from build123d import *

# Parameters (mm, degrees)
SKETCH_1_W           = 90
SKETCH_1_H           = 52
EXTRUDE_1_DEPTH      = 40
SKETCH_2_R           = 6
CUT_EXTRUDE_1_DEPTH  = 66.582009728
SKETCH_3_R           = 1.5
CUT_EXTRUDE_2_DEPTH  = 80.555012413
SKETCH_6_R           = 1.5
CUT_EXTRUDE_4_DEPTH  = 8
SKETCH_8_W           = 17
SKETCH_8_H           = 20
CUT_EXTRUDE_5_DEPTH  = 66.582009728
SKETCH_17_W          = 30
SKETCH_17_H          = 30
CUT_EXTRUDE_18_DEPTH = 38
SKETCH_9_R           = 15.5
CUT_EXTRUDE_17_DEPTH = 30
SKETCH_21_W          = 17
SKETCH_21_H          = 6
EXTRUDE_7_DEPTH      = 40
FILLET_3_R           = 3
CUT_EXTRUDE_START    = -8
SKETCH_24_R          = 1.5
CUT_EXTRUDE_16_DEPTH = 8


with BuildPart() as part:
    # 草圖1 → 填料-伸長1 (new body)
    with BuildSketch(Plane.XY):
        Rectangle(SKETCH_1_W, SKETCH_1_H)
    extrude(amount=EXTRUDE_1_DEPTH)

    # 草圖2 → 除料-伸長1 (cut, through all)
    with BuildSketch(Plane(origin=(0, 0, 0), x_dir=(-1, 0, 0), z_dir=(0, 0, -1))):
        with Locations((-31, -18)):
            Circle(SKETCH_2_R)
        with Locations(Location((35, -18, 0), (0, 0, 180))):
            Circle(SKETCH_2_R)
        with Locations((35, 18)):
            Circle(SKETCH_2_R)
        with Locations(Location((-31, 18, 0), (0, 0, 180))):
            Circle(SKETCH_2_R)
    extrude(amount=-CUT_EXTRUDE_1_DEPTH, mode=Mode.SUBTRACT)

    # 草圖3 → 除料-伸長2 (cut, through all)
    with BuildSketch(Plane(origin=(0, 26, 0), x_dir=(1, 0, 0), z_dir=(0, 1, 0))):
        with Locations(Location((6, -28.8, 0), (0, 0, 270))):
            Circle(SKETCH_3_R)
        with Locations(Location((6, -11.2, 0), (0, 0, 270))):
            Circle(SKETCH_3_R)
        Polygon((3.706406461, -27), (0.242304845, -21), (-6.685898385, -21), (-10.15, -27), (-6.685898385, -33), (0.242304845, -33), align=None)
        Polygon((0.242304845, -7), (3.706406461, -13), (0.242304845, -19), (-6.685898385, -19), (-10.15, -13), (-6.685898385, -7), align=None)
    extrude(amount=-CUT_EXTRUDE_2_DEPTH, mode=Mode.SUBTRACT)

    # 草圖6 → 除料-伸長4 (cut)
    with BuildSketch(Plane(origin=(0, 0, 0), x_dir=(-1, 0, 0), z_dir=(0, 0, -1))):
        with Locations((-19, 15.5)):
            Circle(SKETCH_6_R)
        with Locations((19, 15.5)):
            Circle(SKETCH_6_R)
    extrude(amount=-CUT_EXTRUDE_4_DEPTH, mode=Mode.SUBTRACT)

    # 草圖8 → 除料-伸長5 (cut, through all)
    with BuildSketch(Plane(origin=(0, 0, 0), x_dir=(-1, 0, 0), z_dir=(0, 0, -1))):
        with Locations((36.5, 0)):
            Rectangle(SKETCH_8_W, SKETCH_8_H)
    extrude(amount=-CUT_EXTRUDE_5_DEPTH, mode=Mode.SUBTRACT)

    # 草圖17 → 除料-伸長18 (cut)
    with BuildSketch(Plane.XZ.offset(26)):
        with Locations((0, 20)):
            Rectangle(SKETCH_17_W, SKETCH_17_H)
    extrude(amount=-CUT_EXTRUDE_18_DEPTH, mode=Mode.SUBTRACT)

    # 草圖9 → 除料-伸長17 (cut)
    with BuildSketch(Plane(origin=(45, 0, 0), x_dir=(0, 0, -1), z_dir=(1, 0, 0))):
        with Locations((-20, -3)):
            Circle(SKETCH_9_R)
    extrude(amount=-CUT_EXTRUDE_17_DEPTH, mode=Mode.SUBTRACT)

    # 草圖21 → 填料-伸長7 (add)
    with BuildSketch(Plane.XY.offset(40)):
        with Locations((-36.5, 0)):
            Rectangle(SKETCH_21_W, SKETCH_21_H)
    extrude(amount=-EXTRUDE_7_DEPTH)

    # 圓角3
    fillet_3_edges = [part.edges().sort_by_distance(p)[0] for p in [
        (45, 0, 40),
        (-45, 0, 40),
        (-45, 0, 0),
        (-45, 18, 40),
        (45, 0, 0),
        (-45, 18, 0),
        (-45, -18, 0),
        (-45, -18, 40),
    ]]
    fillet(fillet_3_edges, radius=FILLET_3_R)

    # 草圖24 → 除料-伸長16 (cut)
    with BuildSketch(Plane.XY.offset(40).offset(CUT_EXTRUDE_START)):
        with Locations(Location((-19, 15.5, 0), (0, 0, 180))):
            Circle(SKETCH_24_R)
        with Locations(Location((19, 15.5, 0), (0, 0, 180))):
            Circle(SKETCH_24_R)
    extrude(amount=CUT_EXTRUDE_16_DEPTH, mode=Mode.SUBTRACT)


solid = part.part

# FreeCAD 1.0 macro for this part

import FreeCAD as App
import Part
import Sketcher

V = App.Vector
Q = App.Units.Quantity


def edges_at(feature, points):
    """Names of the edges that pass closest to the given points."""
    edges = feature.Shape.Edges
    near = lambda p: min(range(len(edges)), key=lambda i: edges[i].distToShape(Part.Vertex(*p))[0])
    return sorted({f"Edge{near(p) + 1}" for p in points})

doc = App.newDocument("Part")
body = doc.addObject("PartDesign::Body", "Body")

# Sketch on XY plane
sketch1 = doc.addObject("Sketcher::SketchObject", "Sketch")
body.addObject(sketch1)
sketch1.AttachmentSupport = (doc.XY_Plane, [""])
sketch1.MapMode = "FlatFace"
sketch1.addGeometry([
    Part.LineSegment(V(-45, 26, 0), V(-45, -26, 0)),
    Part.LineSegment(V(-45, -26, 0), V(45, -26, 0)),
    Part.LineSegment(V(45, -26, 0), V(45, 26, 0)),
    Part.LineSegment(V(45, 26, 0), V(-45, 26, 0)),
], False)
sketch1.addConstraint([
    Sketcher.Constraint("Coincident", 0, 2, 1, 1),
    Sketcher.Constraint("Coincident", 1, 2, 2, 1),
    Sketcher.Constraint("Coincident", 2, 2, 3, 1),
    Sketcher.Constraint("Coincident", 3, 2, 0, 1),
    Sketcher.Constraint("Vertical", 0),
    Sketcher.Constraint("Horizontal", 1),
    Sketcher.Constraint("Vertical", 2),
    Sketcher.Constraint("Horizontal", 3),
    Sketcher.Constraint("Symmetric", 0, 2, 2, 2, -1, 1),
    Sketcher.Constraint("DistanceX", 1, 1, 1, 2, Q("90 mm")),
    Sketcher.Constraint("DistanceY", 0, 2, 0, 1, Q("52 mm")),
])
pad1 = doc.addObject("PartDesign::Pad", "Pad")
body.addObject(pad1)
pad1.Profile = sketch1
pad1.Length = 40

# Sketch on XY plane
sketch2 = doc.addObject("Sketcher::SketchObject", "Sketch001")
body.addObject(sketch2)
sketch2.AttachmentSupport = (doc.XY_Plane, [""])
sketch2.MapMode = "FlatFace"
sketch2.addGeometry([
    Part.Circle(V(31, -18, 0), V(0, 0, 1), 6),
    Part.Circle(V(-35, -18, 0), V(0, 0, 1), 6),
    Part.Circle(V(-35, 18, 0), V(0, 0, 1), 6),
    Part.Circle(V(31, 18, 0), V(0, 0, 1), 6),
], False)
sketch2.addConstraint([
    Sketcher.Constraint("Equal", 0, 1),
    Sketcher.Constraint("Equal", 1, 2),
    Sketcher.Constraint("Equal", 2, 3),
    Sketcher.Constraint("Symmetric", 1, 3, 2, 3, -1),
    Sketcher.Constraint("Symmetric", 0, 3, 3, 3, -1),
    Sketcher.Constraint("Horizontal", 0, 3, 1, 3),
    Sketcher.Constraint("Diameter", 0, Q("12 mm")),
    Sketcher.Constraint("DistanceX", -1, 1, 0, 3, Q("31 mm")),
    Sketcher.Constraint("DistanceY", 0, 3, -1, 1, Q("18 mm")),
    Sketcher.Constraint("DistanceX", 1, 3, -1, 1, Q("35 mm")),
])
pocket1 = doc.addObject("PartDesign::Pocket", "Pocket")
body.addObject(pocket1)
pocket1.Profile = sketch2
pocket1.Type = "ThroughAll"
pocket1.Reversed = True

# Sketch on XZ plane
sketch3 = doc.addObject("Sketcher::SketchObject", "Sketch002")
body.addObject(sketch3)
sketch3.AttachmentSupport = (doc.XZ_Plane, [""])
sketch3.MapMode = "FlatFace"
sketch3.AttachmentOffset = App.Placement(V(0, 0, -26), App.Rotation())
sketch3.addGeometry([
    Part.Circle(V(6, 28.8, 0), V(0, 0, 1), 1.5),  # 0
    Part.Circle(V(6, 11.2, 0), V(0, 0, 1), 1.5),  # 1
    Part.LineSegment(V(3.7, 27, 0), V(0.2, 21, 0)),  # 2
    Part.LineSegment(V(0.2, 21, 0), V(-6.7, 21, 0)),  # 3
    Part.LineSegment(V(-6.7, 21, 0), V(-10.2, 27, 0)),  # 4
    Part.LineSegment(V(-10.2, 27, 0), V(-6.7, 33, 0)),  # 5
    Part.LineSegment(V(-6.7, 33, 0), V(0.2, 33, 0)),  # 6
    Part.LineSegment(V(0.2, 33, 0), V(3.7, 27, 0)),  # 7
    Part.LineSegment(V(3.7, 13, 0), V(0.2, 7, 0)),  # 8
    Part.LineSegment(V(0.2, 7, 0), V(-6.7, 7, 0)),  # 9
    Part.LineSegment(V(-6.7, 7, 0), V(-10.2, 13, 0)),  # 10
    Part.LineSegment(V(-10.2, 13, 0), V(-6.7, 19, 0)),  # 11
    Part.LineSegment(V(-6.7, 19, 0), V(0.2, 19, 0)),  # 12
    Part.LineSegment(V(0.2, 19, 0), V(3.7, 13, 0)),  # 13
], False)
sketch3.addConstraint([
    Sketcher.Constraint("Coincident", 2, 2, 3, 1),
    Sketcher.Constraint("Coincident", 3, 2, 4, 1),
    Sketcher.Constraint("Coincident", 4, 2, 5, 1),
    Sketcher.Constraint("Coincident", 5, 2, 6, 1),
    Sketcher.Constraint("Coincident", 6, 2, 7, 1),
    Sketcher.Constraint("Coincident", 7, 2, 2, 1),
    Sketcher.Constraint("Coincident", 8, 2, 9, 1),
    Sketcher.Constraint("Coincident", 9, 2, 10, 1),
    Sketcher.Constraint("Coincident", 10, 2, 11, 1),
    Sketcher.Constraint("Coincident", 11, 2, 12, 1),
    Sketcher.Constraint("Coincident", 12, 2, 13, 1),
    Sketcher.Constraint("Coincident", 13, 2, 8, 1),
    Sketcher.Constraint("Horizontal", 3),
    Sketcher.Constraint("Horizontal", 6),
    Sketcher.Constraint("Horizontal", 9),
    Sketcher.Constraint("Horizontal", 12),
    Sketcher.Constraint("Equal", 0, 1),
    Sketcher.Constraint("Parallel", 2, 5),
    Sketcher.Constraint("Parallel", 4, 7),
    Sketcher.Constraint("Parallel", 5, 8),
    Sketcher.Constraint("Parallel", 7, 10),
    Sketcher.Constraint("Parallel", 8, 11),
    Sketcher.Constraint("Parallel", 10, 13),
    Sketcher.Constraint("Horizontal", 4, 2, 7, 2),
    Sketcher.Constraint("Horizontal", 10, 2, 13, 2),
    Sketcher.Constraint("Vertical", 0, 3, 1, 3),
    Sketcher.Constraint("Vertical", 3, 2, 5, 2),
    Sketcher.Constraint("Vertical", 2, 2, 6, 2),
    Sketcher.Constraint("Vertical", 6, 2, 8, 2),
    Sketcher.Constraint("Vertical", 5, 2, 9, 2),
    Sketcher.Constraint("Vertical", 4, 2, 10, 2),
    Sketcher.Constraint("Vertical", 9, 2, 11, 2),
    Sketcher.Constraint("Diameter", 0, Q("3 mm")),
    Sketcher.Constraint("Angle", 2, Q("-120 deg")),
    Sketcher.Constraint("DistanceX", -1, 1, 0, 3, Q("6 mm")),
    Sketcher.Constraint("DistanceY", -1, 1, 2, 2, Q("21 mm")),
    Sketcher.Constraint("DistanceY", -1, 1, 4, 2, Q("27 mm")),
    Sketcher.Constraint("DistanceY", -1, 1, 8, 2, Q("7 mm")),
    Sketcher.Constraint("DistanceY", -1, 1, 0, 3, Q("28.8 mm")),
    Sketcher.Constraint("DistanceY", -1, 1, 1, 3, Q("11.2 mm")),
    Sketcher.Constraint("DistanceX", 4, 2, -1, 1, Q("10.15 mm")),
    Sketcher.Constraint("DistanceX", 3, 2, 3, 1, Q("6.928203 mm")),
])
pocket2 = doc.addObject("PartDesign::Pocket", "Pocket001")
body.addObject(pocket2)
pocket2.Profile = sketch3
pocket2.Type = "ThroughAll"
pocket2.Reversed = True

# Sketch on XY plane
sketch4 = doc.addObject("Sketcher::SketchObject", "Sketch003")
body.addObject(sketch4)
sketch4.AttachmentSupport = (doc.XY_Plane, [""])
sketch4.MapMode = "FlatFace"
sketch4.addGeometry([
    Part.Circle(V(19, 15.5, 0), V(0, 0, 1), 1.5),
    Part.Circle(V(-19, 15.5, 0), V(0, 0, 1), 1.5),
], False)
sketch4.addConstraint([
    Sketcher.Constraint("Equal", 0, 1),
    Sketcher.Constraint("Symmetric", 0, 3, 1, 3, -2),
    Sketcher.Constraint("Diameter", 0, Q("3 mm")),
    Sketcher.Constraint("DistanceX", -1, 1, 0, 3, Q("19 mm")),
    Sketcher.Constraint("DistanceY", -1, 1, 0, 3, Q("15.5 mm")),
])
pocket3 = doc.addObject("PartDesign::Pocket", "Pocket002")
body.addObject(pocket3)
pocket3.Profile = sketch4
pocket3.Length = 8
pocket3.Reversed = True

# Sketch on XY plane
sketch5 = doc.addObject("Sketcher::SketchObject", "Sketch004")
body.addObject(sketch5)
sketch5.AttachmentSupport = (doc.XY_Plane, [""])
sketch5.MapMode = "FlatFace"
sketch5.addGeometry([
    Part.LineSegment(V(-28, 10, 0), V(-28, -10, 0)),
    Part.LineSegment(V(-28, -10, 0), V(-45, -10, 0)),
    Part.LineSegment(V(-45, -10, 0), V(-45, 10, 0)),
    Part.LineSegment(V(-45, 10, 0), V(-28, 10, 0)),
], False)
sketch5.addConstraint([
    Sketcher.Constraint("Coincident", 0, 2, 1, 1),
    Sketcher.Constraint("Coincident", 1, 2, 2, 1),
    Sketcher.Constraint("Coincident", 2, 2, 3, 1),
    Sketcher.Constraint("Coincident", 3, 2, 0, 1),
    Sketcher.Constraint("Vertical", 0),
    Sketcher.Constraint("Horizontal", 1),
    Sketcher.Constraint("Vertical", 2),
    Sketcher.Constraint("Horizontal", 3),
    Sketcher.Constraint("DistanceX", 1, 2, 1, 1, Q("17 mm")),
    Sketcher.Constraint("DistanceY", 0, 2, 0, 1, Q("20 mm")),
    Sketcher.Constraint("DistanceX", 0, 2, -1, 1, Q("28 mm")),
    Sketcher.Constraint("DistanceY", 0, 2, -1, 1, Q("10 mm")),
])
pocket4 = doc.addObject("PartDesign::Pocket", "Pocket003")
body.addObject(pocket4)
pocket4.Profile = sketch5
pocket4.Type = "ThroughAll"
pocket4.Reversed = True

# Sketch on XZ plane
sketch6 = doc.addObject("Sketcher::SketchObject", "Sketch005")
body.addObject(sketch6)
sketch6.AttachmentSupport = (doc.XZ_Plane, [""])
sketch6.MapMode = "FlatFace"
sketch6.AttachmentOffset = App.Placement(V(0, 0, 26), App.Rotation())
sketch6.addGeometry([
    Part.LineSegment(V(-15, 35, 0), V(-15, 5, 0)),
    Part.LineSegment(V(-15, 5, 0), V(15, 5, 0)),
    Part.LineSegment(V(15, 5, 0), V(15, 35, 0)),
    Part.LineSegment(V(15, 35, 0), V(-15, 35, 0)),
], False)
sketch6.addConstraint([
    Sketcher.Constraint("Coincident", 0, 2, 1, 1),
    Sketcher.Constraint("Coincident", 1, 2, 2, 1),
    Sketcher.Constraint("Coincident", 2, 2, 3, 1),
    Sketcher.Constraint("Coincident", 3, 2, 0, 1),
    Sketcher.Constraint("Vertical", 0),
    Sketcher.Constraint("Horizontal", 1),
    Sketcher.Constraint("Vertical", 2),
    Sketcher.Constraint("Horizontal", 3),
    Sketcher.Constraint("Equal", 3, 0),
    Sketcher.Constraint("DistanceX", 1, 1, 1, 2, Q("30 mm")),
    Sketcher.Constraint("DistanceX", 0, 2, -1, 1, Q("15 mm")),
    Sketcher.Constraint("DistanceY", -1, 1, 0, 2, Q("5 mm")),
])
pocket5 = doc.addObject("PartDesign::Pocket", "Pocket004")
body.addObject(pocket5)
pocket5.Profile = sketch6
pocket5.Length = 38

# Sketch on YZ plane
sketch7 = doc.addObject("Sketcher::SketchObject", "Sketch006")
body.addObject(sketch7)
sketch7.AttachmentSupport = (doc.YZ_Plane, [""])
sketch7.MapMode = "FlatFace"
sketch7.AttachmentOffset = App.Placement(V(0, 0, 45), App.Rotation())
sketch7.addGeometry(Part.Circle(V(-3, 20, 0), V(0, 0, 1), 16), False)
sketch7.addConstraint([
    Sketcher.Constraint("Diameter", 0, Q("31 mm")),
    Sketcher.Constraint("DistanceX", 0, 3, -1, 1, Q("3 mm")),
    Sketcher.Constraint("DistanceY", -1, 1, 0, 3, Q("20 mm")),
])
pocket6 = doc.addObject("PartDesign::Pocket", "Pocket005")
body.addObject(pocket6)
pocket6.Profile = sketch7
pocket6.Length = 30

# Sketch on XY plane
sketch8 = doc.addObject("Sketcher::SketchObject", "Sketch007")
body.addObject(sketch8)
sketch8.AttachmentSupport = (doc.XY_Plane, [""])
sketch8.MapMode = "FlatFace"
sketch8.AttachmentOffset = App.Placement(V(0, 0, 40), App.Rotation())
sketch8.addGeometry([
    Part.LineSegment(V(-45, 3, 0), V(-45, -3, 0)),
    Part.LineSegment(V(-45, -3, 0), V(-28, -3, 0)),
    Part.LineSegment(V(-28, -3, 0), V(-28, 3, 0)),
    Part.LineSegment(V(-28, 3, 0), V(-45, 3, 0)),
], False)
sketch8.addConstraint([
    Sketcher.Constraint("Coincident", 0, 2, 1, 1),
    Sketcher.Constraint("Coincident", 1, 2, 2, 1),
    Sketcher.Constraint("Coincident", 2, 2, 3, 1),
    Sketcher.Constraint("Coincident", 3, 2, 0, 1),
    Sketcher.Constraint("Vertical", 0),
    Sketcher.Constraint("Horizontal", 1),
    Sketcher.Constraint("Vertical", 2),
    Sketcher.Constraint("Horizontal", 3),
    Sketcher.Constraint("DistanceX", 1, 1, 1, 2, Q("17 mm")),
    Sketcher.Constraint("DistanceY", 0, 2, 0, 1, Q("6 mm")),
    Sketcher.Constraint("DistanceX", 0, 2, -1, 1, Q("45 mm")),
    Sketcher.Constraint("DistanceY", 0, 2, -1, 1, Q("3 mm")),
])
pad2 = doc.addObject("PartDesign::Pad", "Pad001")
body.addObject(pad2)
pad2.Profile = sketch8
pad2.Length = 40
pad2.Reversed = True
doc.recompute()

fillet = doc.addObject("PartDesign::Fillet", "Fillet")
body.addObject(fillet)
fillet.Base = (pad2, edges_at(pad2, [
    (45, 0, 40),
    (-45, 0, 40),
    (-45, 0, 0),
    (-45, 18, 40),
    (45, 0, 0),
    (-45, 18, 0),
    (-45, -18, 0),
    (-45, -18, 40),
]))
fillet.Radius = 3

# Sketch on XY plane
sketch9 = doc.addObject("Sketcher::SketchObject", "Sketch008")
body.addObject(sketch9)
sketch9.AttachmentSupport = (doc.XY_Plane, [""])
sketch9.MapMode = "FlatFace"
sketch9.AttachmentOffset = App.Placement(V(0, 0, 32), App.Rotation())
sketch9.addGeometry([
    Part.Circle(V(-19, 15.5, 0), V(0, 0, 1), 1.5),
    Part.Circle(V(19, 15.5, 0), V(0, 0, 1), 1.5),
], False)
sketch9.addConstraint([
    Sketcher.Constraint("Equal", 0, 1),
    Sketcher.Constraint("Symmetric", 0, 3, 1, 3, -2),
    Sketcher.Constraint("Diameter", 0, Q("3 mm")),
    Sketcher.Constraint("DistanceX", 0, 3, -1, 1, Q("19 mm")),
    Sketcher.Constraint("DistanceY", -1, 1, 0, 3, Q("15.5 mm")),
])
pocket7 = doc.addObject("PartDesign::Pocket", "Pocket006")
body.addObject(pocket7)
pocket7.Profile = sketch9
pocket7.Length = 8
pocket7.Reversed = True

doc.recompute()
